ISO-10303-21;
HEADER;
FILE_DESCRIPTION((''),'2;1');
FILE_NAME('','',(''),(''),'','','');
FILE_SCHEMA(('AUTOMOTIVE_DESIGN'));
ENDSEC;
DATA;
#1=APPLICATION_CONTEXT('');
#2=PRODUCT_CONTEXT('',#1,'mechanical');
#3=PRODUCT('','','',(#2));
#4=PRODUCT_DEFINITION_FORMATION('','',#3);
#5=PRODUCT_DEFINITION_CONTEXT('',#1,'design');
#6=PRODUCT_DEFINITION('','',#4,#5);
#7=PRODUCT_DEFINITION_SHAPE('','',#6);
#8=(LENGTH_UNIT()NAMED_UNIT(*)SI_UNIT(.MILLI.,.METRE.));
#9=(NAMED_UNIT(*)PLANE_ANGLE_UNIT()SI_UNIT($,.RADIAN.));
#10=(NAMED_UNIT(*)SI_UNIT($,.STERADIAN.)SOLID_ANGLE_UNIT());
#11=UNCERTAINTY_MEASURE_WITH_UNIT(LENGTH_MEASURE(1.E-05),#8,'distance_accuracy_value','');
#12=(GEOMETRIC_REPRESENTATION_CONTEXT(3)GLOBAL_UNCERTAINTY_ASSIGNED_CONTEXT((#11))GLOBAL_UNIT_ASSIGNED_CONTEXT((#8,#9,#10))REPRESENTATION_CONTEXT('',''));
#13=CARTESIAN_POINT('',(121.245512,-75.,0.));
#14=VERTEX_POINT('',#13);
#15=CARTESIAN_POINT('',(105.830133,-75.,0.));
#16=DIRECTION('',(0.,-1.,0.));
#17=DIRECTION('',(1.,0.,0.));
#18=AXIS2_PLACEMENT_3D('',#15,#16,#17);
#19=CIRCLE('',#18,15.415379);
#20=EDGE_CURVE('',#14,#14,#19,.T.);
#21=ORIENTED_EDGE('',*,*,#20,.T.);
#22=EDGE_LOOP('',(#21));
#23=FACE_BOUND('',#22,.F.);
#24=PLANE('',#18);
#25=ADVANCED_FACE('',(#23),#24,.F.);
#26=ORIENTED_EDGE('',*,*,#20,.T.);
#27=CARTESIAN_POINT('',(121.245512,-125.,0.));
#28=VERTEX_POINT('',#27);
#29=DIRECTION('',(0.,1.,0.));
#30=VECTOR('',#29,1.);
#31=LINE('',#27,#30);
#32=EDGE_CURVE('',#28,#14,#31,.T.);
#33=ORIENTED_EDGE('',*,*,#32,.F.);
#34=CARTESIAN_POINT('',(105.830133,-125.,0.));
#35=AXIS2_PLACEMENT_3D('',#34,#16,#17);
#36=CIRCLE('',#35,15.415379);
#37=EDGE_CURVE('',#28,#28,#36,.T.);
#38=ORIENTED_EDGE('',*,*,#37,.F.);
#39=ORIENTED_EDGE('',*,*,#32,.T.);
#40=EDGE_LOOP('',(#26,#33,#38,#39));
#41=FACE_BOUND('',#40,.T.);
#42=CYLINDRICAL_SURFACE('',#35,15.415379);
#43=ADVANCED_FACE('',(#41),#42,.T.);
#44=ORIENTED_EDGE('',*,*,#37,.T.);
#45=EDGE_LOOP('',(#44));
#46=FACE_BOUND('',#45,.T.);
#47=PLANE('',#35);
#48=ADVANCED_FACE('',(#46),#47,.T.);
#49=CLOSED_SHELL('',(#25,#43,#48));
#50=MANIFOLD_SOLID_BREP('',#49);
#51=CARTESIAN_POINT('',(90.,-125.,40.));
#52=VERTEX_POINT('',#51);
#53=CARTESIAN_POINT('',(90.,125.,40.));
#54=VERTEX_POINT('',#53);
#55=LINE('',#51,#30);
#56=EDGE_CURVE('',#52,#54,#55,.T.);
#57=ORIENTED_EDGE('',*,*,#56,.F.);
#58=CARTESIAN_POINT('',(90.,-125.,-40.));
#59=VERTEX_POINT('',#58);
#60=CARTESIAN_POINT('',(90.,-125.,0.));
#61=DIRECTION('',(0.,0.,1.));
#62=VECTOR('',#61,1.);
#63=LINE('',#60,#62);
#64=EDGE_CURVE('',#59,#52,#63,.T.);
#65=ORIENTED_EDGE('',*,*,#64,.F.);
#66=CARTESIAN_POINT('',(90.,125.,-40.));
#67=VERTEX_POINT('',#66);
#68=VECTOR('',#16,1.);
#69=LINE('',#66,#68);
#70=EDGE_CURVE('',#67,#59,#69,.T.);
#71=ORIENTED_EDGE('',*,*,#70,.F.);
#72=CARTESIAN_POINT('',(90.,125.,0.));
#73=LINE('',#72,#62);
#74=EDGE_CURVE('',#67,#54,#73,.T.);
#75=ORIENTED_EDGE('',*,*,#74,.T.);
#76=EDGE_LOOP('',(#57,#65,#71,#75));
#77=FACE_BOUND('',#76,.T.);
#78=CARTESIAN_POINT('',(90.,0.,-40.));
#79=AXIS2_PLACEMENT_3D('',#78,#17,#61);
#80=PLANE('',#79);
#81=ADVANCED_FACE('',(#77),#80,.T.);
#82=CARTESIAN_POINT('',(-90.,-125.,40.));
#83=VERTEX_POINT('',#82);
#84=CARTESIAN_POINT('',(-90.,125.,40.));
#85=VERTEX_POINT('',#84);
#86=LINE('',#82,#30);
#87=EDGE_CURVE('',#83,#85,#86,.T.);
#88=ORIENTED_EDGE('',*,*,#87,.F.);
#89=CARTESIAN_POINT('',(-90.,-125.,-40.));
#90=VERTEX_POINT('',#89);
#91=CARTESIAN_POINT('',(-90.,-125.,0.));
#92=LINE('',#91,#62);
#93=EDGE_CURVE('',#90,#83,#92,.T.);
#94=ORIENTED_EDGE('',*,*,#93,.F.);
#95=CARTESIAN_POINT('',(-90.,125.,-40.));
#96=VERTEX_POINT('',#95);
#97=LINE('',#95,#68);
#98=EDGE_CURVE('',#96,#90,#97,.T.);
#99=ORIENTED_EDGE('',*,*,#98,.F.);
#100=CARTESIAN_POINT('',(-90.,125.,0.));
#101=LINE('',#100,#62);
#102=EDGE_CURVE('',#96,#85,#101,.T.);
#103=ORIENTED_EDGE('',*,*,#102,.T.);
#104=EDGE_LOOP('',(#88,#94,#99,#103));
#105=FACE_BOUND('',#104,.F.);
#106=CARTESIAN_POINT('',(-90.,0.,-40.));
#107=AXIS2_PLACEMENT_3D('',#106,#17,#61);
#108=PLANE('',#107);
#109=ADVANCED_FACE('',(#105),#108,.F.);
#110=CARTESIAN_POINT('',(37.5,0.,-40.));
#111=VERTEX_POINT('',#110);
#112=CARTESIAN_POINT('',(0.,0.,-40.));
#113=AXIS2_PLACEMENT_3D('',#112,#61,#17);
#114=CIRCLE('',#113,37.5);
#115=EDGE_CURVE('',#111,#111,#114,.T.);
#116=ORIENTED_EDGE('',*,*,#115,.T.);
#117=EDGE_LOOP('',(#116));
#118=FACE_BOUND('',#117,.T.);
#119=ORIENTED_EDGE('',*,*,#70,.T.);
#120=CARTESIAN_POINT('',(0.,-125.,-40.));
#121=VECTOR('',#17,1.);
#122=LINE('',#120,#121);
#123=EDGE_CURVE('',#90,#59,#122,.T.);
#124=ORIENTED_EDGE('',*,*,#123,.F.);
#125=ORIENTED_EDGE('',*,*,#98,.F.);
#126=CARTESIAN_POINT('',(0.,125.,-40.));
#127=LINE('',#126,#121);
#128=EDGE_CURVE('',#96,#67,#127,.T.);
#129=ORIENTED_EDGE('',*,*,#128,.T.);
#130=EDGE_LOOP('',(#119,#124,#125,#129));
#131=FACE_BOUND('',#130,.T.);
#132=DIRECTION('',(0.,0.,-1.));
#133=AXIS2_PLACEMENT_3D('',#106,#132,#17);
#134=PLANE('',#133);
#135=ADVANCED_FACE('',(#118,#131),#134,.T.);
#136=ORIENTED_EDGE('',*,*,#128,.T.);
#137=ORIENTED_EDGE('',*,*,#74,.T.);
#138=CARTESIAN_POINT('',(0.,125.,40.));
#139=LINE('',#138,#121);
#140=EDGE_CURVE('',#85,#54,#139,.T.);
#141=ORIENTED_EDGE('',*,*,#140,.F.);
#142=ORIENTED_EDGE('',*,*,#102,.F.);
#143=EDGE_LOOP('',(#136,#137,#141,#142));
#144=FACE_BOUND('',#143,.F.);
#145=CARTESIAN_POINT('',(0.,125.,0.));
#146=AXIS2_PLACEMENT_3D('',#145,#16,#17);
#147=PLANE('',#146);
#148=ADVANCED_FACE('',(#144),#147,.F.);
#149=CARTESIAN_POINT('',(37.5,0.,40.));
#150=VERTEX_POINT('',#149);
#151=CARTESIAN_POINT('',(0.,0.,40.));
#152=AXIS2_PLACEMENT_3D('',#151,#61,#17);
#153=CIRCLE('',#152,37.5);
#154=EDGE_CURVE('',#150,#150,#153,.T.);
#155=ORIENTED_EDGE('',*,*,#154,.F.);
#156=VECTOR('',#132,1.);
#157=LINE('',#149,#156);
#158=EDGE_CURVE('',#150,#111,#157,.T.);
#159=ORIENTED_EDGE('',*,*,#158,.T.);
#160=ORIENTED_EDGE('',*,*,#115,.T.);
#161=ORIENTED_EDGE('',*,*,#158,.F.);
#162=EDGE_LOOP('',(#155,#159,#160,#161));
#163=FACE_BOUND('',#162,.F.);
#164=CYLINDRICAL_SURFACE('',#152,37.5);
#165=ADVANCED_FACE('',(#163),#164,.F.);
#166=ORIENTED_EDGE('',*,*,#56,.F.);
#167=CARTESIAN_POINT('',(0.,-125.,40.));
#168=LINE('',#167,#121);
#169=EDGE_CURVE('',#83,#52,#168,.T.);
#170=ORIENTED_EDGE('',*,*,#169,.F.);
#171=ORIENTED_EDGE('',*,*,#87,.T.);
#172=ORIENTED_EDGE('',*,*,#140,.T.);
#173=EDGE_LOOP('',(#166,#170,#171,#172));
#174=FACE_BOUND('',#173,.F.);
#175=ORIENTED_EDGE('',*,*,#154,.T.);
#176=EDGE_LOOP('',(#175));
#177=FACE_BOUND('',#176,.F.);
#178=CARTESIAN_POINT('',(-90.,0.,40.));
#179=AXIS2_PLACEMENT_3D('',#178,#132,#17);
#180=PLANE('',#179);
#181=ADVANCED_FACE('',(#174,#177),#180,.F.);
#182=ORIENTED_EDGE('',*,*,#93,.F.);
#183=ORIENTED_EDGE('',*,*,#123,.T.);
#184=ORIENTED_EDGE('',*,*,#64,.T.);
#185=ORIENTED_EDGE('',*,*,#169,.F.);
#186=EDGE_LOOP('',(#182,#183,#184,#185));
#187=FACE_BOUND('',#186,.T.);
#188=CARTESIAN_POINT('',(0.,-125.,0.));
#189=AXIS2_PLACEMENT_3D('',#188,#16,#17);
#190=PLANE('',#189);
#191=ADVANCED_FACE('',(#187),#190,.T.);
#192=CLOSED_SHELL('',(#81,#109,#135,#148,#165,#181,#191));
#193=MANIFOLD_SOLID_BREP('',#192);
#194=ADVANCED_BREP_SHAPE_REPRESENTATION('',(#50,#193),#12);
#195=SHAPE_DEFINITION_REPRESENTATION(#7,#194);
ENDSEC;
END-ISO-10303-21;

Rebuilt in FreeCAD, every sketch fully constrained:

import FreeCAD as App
import Part
import Sketcher

V = App.Vector
Q = App.Units.Quantity

doc = App.newDocument("Part")
params = doc.addObject("Spreadsheet::Sheet", "Params")
for row, (alias, value) in enumerate([
    ("sketch1_width", "180 mm"),
    ("sketch1_height", "80 mm"),
    ("pad1_length", "250 mm"),
    ("sketch2_diameter", "75 mm"),
    ("pocket1_length", "100 mm"),
    ("pad2_length", "50 mm"),
], start=1):
    params.set(f"A{row}", alias)
    params.set(f"B{row}", "=" + value)
    params.setAlias(f"B{row}", alias)

body = doc.addObject("PartDesign::Body", "Body")

# Sketch on XZ plane
sketch1 = body.newObject("Sketcher::SketchObject", "Sketch")
sketch1.AttachmentSupport = (doc.getObject("XZ_Plane"), [""])
sketch1.MapMode = "FlatFace"
sketch1.addGeometry(Part.LineSegment(V(-90, 40, 0), V(-90, -40, 0)), False)
sketch1.addGeometry(Part.LineSegment(V(-90, -40, 0), V(90, -40, 0)), False)
sketch1.addGeometry(Part.LineSegment(V(90, -40, 0), V(90, 40, 0)), False)
sketch1.addGeometry(Part.LineSegment(V(90, 40, 0), V(-90, 40, 0)), False)
sketch1.addConstraint(Sketcher.Constraint("Coincident", 0, 2, 1, 1))
sketch1.addConstraint(Sketcher.Constraint("Coincident", 1, 2, 2, 1))
sketch1.addConstraint(Sketcher.Constraint("Coincident", 2, 2, 3, 1))
sketch1.addConstraint(Sketcher.Constraint("Coincident", 3, 2, 0, 1))
sketch1.addConstraint(Sketcher.Constraint("Vertical", 0))
sketch1.addConstraint(Sketcher.Constraint("Horizontal", 1))
sketch1.addConstraint(Sketcher.Constraint("Vertical", 2))
sketch1.addConstraint(Sketcher.Constraint("Horizontal", 3))
sketch1.addConstraint(Sketcher.Constraint("Symmetric", 0, 2, 2, 2, -1, 1))
sketch1.addConstraint(Sketcher.Constraint("DistanceX", 1, 1, 1, 2, Q("180 mm")))
sketch1.addConstraint(Sketcher.Constraint("DistanceY", 0, 2, 0, 1, Q("80 mm")))
sketch1.setExpression("Constraints[9]", "Params.sketch1_width")
sketch1.setExpression("Constraints[10]", "Params.sketch1_height")
pad1 = body.newObject("PartDesign::Pad", "Pad")
pad1.Profile = sketch1
pad1.setExpression("Length", "Params.pad1_length")
pad1.Midplane = True

# Sketch on XY plane
sketch2 = body.newObject("Sketcher::SketchObject", "Sketch001")
sketch2.AttachmentSupport = (doc.getObject("XY_Plane"), [""])
sketch2.MapMode = "FlatFace"
sketch2.AttachmentOffset = App.Placement(V(0, 0, 40), App.Rotation())
sketch2.addGeometry(Part.Circle(V(0, 0, 0), V(0, 0, 1), 38), False)
sketch2.addConstraint(Sketcher.Constraint("Coincident", 0, 3, -1, 1))
sketch2.addConstraint(Sketcher.Constraint("Diameter", 0, Q("75 mm")))
sketch2.setExpression("Constraints[1]", "Params.sketch2_diameter")
pocket1 = body.newObject("PartDesign::Pocket", "Pocket")
pocket1.Profile = sketch2
pocket1.setExpression("Length", "Params.pocket1_length")
body2 = doc.addObject("PartDesign::Body", "Body001")

# Sketch on XZ plane
sketch3 = body2.newObject("Sketcher::SketchObject", "Sketch002")
sketch3.AttachmentSupport = (doc.getObject("XZ_Plane001"), [""])
sketch3.MapMode = "FlatFace"
sketch3.AttachmentOffset = App.Placement(V(0, 0, 125), App.Rotation())
sketch3.addGeometry(Part.Circle(V(106, 0, 0), V(0, 0, 1), 15), False)
sketch3.addConstraint(Sketcher.Constraint("PointOnObject", 0, 3, -1))
sketch3.addConstraint(Sketcher.Constraint("Diameter", 0, Q("30.830758 mm")))
sketch3.addConstraint(Sketcher.Constraint("DistanceX", -1, 1, 0, 3, Q("105.830133 mm")))
pad2 = body2.newObject("PartDesign::Pad", "Pad001")
pad2.Profile = sketch3
pad2.setExpression("Length", "Params.pad2_length")
pad2.Reversed = True

doc.recompute()
